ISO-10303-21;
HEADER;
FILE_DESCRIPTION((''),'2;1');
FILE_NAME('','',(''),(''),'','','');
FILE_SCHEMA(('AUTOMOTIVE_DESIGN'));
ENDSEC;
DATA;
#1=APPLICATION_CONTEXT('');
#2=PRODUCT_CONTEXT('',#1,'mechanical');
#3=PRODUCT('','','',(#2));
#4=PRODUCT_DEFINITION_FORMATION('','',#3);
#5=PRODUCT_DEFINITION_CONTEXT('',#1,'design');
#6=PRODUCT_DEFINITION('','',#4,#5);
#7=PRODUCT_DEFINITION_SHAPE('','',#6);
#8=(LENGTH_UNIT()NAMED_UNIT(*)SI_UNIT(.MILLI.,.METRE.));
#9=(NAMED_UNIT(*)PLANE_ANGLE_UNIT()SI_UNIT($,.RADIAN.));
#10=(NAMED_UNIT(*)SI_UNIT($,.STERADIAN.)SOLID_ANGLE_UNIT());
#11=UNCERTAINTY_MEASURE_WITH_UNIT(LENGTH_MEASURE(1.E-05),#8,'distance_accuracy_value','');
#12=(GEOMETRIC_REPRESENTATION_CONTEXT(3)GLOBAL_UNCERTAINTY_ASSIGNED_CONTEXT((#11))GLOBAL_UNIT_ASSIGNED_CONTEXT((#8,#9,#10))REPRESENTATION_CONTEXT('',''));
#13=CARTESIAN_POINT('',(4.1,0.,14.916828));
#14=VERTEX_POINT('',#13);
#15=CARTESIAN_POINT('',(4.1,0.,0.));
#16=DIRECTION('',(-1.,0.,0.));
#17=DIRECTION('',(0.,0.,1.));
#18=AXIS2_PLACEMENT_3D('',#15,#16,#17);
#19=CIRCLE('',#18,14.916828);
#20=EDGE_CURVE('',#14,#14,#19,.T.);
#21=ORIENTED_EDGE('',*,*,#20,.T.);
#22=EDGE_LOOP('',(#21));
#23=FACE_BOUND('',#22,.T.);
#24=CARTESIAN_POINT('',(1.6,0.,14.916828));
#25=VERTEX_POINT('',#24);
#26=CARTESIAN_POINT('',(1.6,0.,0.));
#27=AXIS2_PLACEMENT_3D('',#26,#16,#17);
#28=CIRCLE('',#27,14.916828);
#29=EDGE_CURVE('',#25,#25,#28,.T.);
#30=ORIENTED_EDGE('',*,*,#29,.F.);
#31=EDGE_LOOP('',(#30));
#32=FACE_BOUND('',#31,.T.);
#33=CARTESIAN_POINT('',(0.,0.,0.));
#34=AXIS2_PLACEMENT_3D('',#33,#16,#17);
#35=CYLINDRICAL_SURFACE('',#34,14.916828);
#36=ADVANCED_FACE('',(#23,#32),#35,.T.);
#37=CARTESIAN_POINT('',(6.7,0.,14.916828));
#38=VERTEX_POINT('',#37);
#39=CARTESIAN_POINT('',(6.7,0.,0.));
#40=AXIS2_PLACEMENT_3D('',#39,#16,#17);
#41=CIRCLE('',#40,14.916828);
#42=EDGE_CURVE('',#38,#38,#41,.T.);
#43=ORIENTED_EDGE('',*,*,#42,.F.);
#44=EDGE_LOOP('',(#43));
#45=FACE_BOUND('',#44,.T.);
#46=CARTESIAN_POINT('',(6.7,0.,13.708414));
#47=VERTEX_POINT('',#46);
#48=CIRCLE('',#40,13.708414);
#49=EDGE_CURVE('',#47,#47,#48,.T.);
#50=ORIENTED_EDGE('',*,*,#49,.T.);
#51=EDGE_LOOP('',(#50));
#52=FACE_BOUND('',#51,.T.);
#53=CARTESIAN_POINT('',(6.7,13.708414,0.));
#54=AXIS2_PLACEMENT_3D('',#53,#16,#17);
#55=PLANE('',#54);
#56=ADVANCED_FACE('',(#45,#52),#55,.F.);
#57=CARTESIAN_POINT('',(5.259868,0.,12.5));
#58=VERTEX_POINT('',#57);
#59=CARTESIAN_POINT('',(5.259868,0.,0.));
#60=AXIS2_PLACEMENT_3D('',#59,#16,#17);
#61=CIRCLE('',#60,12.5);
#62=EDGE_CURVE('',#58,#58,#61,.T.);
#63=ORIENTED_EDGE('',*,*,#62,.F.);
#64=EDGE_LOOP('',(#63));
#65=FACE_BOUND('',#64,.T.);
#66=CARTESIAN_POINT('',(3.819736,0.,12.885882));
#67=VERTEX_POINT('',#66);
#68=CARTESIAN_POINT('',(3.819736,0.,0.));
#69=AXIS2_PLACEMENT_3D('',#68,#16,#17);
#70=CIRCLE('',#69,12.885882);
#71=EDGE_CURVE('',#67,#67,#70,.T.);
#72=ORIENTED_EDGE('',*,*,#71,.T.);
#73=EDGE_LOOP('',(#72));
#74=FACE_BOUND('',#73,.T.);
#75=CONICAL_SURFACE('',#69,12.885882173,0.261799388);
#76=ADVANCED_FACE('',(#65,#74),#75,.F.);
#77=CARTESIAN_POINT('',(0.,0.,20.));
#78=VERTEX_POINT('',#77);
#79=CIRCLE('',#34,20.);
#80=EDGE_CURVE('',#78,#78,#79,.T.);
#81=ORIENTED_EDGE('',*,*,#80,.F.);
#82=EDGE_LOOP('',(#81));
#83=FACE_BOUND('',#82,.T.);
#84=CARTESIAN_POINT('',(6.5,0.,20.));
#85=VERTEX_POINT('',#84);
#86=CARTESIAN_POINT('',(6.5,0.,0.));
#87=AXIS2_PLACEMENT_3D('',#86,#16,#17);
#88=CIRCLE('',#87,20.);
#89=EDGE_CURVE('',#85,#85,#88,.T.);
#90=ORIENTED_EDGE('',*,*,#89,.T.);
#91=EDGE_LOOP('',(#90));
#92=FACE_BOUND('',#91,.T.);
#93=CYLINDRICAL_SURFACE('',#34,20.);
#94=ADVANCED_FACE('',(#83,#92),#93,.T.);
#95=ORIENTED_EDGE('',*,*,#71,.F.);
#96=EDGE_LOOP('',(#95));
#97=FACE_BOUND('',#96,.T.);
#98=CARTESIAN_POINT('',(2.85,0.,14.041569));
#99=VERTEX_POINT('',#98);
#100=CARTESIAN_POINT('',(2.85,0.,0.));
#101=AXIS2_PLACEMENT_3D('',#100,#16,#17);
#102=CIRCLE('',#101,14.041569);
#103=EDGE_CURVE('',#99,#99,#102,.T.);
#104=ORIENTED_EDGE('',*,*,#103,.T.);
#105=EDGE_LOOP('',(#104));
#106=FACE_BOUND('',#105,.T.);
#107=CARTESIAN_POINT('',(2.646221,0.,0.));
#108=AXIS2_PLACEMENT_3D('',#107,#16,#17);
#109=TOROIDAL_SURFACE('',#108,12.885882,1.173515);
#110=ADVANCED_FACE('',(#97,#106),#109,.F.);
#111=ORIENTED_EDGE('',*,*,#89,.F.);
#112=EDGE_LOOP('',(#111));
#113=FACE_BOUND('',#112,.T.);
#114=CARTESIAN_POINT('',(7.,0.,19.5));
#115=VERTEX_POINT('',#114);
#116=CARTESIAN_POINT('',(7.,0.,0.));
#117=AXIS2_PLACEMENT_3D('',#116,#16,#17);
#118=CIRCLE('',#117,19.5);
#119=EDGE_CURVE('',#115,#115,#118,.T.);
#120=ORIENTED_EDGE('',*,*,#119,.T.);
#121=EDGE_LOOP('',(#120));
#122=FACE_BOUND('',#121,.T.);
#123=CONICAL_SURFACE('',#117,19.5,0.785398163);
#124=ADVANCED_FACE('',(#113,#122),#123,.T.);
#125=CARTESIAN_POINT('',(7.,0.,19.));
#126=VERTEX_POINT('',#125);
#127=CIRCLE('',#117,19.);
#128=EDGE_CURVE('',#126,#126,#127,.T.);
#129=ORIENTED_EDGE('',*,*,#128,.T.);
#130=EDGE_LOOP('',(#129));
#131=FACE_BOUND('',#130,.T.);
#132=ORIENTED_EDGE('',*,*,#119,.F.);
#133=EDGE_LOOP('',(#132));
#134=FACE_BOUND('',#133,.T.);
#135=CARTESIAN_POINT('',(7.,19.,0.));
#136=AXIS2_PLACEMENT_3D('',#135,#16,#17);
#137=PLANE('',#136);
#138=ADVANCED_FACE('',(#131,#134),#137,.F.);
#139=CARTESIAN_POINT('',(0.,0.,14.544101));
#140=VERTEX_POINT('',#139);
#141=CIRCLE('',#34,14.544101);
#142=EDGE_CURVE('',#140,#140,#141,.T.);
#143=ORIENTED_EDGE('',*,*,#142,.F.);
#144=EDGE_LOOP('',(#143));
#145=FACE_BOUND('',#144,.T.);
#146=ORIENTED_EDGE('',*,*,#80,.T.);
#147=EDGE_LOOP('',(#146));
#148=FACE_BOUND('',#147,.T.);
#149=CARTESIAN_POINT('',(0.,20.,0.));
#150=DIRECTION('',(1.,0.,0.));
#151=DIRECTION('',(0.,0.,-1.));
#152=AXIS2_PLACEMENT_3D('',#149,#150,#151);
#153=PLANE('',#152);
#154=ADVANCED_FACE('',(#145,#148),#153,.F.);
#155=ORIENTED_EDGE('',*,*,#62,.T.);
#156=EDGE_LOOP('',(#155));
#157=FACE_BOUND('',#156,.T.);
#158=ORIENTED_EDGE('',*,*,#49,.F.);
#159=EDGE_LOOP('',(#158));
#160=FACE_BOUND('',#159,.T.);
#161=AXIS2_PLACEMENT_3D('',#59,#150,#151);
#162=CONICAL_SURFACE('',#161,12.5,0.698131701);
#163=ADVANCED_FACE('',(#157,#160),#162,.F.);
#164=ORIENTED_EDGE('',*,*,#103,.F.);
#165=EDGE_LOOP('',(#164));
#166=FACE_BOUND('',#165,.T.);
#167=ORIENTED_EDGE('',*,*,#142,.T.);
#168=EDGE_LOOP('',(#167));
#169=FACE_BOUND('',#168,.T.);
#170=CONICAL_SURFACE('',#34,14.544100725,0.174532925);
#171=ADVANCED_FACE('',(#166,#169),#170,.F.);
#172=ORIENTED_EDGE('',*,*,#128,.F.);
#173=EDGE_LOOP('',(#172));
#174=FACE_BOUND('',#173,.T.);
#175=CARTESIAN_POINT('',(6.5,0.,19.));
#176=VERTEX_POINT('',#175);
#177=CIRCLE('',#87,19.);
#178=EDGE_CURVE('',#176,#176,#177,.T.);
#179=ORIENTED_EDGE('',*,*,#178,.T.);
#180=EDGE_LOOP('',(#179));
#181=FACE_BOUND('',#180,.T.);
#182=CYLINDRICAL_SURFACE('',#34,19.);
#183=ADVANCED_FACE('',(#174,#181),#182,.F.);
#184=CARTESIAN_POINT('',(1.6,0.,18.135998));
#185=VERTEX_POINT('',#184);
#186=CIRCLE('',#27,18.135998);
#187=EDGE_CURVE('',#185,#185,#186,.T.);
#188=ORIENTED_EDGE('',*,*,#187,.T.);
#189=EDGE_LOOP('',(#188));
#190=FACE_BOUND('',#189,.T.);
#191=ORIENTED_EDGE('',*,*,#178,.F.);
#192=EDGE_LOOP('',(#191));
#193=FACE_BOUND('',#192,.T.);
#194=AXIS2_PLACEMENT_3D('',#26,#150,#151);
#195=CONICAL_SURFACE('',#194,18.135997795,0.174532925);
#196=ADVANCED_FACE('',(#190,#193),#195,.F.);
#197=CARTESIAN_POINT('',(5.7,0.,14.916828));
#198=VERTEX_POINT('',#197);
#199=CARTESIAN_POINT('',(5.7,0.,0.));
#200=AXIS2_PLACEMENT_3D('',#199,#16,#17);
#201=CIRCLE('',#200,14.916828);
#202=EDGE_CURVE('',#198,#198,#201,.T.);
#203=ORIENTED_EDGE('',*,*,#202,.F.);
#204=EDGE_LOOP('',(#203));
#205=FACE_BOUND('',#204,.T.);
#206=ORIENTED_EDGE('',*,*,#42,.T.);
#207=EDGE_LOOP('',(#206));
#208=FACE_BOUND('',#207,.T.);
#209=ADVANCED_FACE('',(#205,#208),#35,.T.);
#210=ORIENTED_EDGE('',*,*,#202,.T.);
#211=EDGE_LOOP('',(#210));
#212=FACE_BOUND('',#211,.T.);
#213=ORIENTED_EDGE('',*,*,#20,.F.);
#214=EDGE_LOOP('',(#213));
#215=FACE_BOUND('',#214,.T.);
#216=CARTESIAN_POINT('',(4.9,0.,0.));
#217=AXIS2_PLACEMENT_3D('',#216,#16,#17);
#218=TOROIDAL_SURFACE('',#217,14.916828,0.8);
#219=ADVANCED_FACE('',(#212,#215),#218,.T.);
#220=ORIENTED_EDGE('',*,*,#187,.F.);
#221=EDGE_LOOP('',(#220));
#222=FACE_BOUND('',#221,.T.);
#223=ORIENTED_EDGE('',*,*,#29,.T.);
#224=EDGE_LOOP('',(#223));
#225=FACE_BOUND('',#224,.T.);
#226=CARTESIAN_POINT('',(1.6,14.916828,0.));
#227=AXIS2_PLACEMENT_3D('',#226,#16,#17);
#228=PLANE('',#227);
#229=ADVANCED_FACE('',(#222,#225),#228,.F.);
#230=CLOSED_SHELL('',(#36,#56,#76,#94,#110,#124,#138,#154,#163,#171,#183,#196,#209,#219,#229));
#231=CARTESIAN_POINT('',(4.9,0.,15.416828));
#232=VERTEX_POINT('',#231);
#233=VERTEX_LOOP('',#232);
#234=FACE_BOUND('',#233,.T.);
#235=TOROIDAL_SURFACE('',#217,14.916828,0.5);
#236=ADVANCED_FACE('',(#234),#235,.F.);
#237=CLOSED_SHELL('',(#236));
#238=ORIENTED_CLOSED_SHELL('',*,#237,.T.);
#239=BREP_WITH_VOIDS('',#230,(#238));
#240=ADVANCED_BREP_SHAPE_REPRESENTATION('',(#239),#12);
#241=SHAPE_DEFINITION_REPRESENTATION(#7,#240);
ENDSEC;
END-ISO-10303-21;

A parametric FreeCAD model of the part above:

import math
import FreeCAD as App
import Part
import Sketcher
from FreeCAD import Vector
Q = App.Units.Quantity

doc = App.newDocument("Part")
params = doc.addObject("Spreadsheet::Sheet", "Params")
for row, (alias, value) in enumerate([
    ("sketch1_diameter", "1 mm"),
    ("sketch1_radius", "0.8 mm"),
    ("sketch1_width", "1 mm"),
    ("sketch1_width2", "2.5 mm"),
    ("sketch1_width3", "0.5 mm"),
    ("revolution_angle", "360 deg"),
], start=1):
    params.set(f"A{row}", alias)
    params.set(f"B{row}", "=" + value)
    params.setAlias(f"B{row}", alias)

body = doc.addObject("PartDesign::Body", "Body")

sketch1 = body.newObject("Sketcher::SketchObject", "Sketch")
sketch1.AttachmentSupport = (doc.getObject("XY_Plane"), [""])
sketch1.MapMode = "FlatFace"
sketch1.addGeometry([
    Part.LineSegment(Vector(0, 20, 0), Vector(0, 14.5, 0)),
    Part.LineSegment(Vector(0, 14.5, 0), Vector(2.9, 14, 0)),
    Part.ArcOfCircle(Part.Circle(Vector(2.6, 12.9, 0), Vector(0, 0, 1), 1.2), math.radians(0), math.radians(80)),
    Part.LineSegment(Vector(3.8, 12.9, 0), Vector(5.3, 12.5, 0)),
    Part.LineSegment(Vector(5.3, 12.5, 0), Vector(6.7, 13.7, 0)),
    Part.LineSegment(Vector(6.7, 13.7, 0), Vector(6.7, 14.9, 0)),
    Part.LineSegment(Vector(6.7, 14.9, 0), Vector(5.7, 14.9, 0)),
    Part.ArcOfCircle(Part.Circle(Vector(4.9, 14.9, 0), Vector(0, 0, 1), 0.8), math.radians(0), math.radians(180)),
    Part.LineSegment(Vector(4.1, 14.9, 0), Vector(1.6, 14.9, 0)),
    Part.LineSegment(Vector(1.6, 14.9, 0), Vector(1.6, 18.1, 0)),
    Part.LineSegment(Vector(1.6, 18.1, 0), Vector(6.5, 19, 0)),
    Part.LineSegment(Vector(6.5, 19, 0), Vector(7, 19, 0)),
    Part.LineSegment(Vector(7, 19, 0), Vector(7, 19.5, 0)),
    Part.LineSegment(Vector(7, 19.5, 0), Vector(6.5, 20, 0)),
    Part.LineSegment(Vector(6.5, 20, 0), Vector(0, 20, 0)),
    Part.Circle(Vector(4.9, 14.9, 0), Vector(0, 0, 1), 0.5),
], False)
sketch1.addConstraint([
    Sketcher.Constraint("Coincident", 0, 2, 1, 1),
    Sketcher.Constraint("Tangent", 1, 2, 2, 2),
    Sketcher.Constraint("Coincident", 2, 1, 3, 1),
    Sketcher.Constraint("Coincident", 3, 2, 4, 1),
    Sketcher.Constraint("Coincident", 4, 2, 5, 1),
    Sketcher.Constraint("Coincident", 5, 2, 6, 1),
    Sketcher.Constraint("Coincident", 6, 2, 7, 1),
    Sketcher.Constraint("Coincident", 7, 2, 8, 1),
    Sketcher.Constraint("Coincident", 8, 2, 9, 1),
    Sketcher.Constraint("Coincident", 9, 2, 10, 1),
    Sketcher.Constraint("Coincident", 10, 2, 11, 1),
    Sketcher.Constraint("Coincident", 11, 2, 12, 1),
    Sketcher.Constraint("Coincident", 12, 2, 13, 1),
    Sketcher.Constraint("Coincident", 13, 2, 14, 1),
    Sketcher.Constraint("Coincident", 14, 2, 0, 1),
    Sketcher.Constraint("Vertical", 0),
    Sketcher.Constraint("Vertical", 5),
    Sketcher.Constraint("Horizontal", 6),
    Sketcher.Constraint("Horizontal", 8),
    Sketcher.Constraint("Vertical", 9),
    Sketcher.Constraint("Horizontal", 11),
    Sketcher.Constraint("Vertical", 12),
    Sketcher.Constraint("Horizontal", 14),
    Sketcher.Constraint("Coincident", 15, 3, 7, 3),
    Sketcher.Constraint("PointOnObject", 0, 2, -2),
    Sketcher.Constraint("Horizontal", 15, 3, 5, 2),
    Sketcher.Constraint("Horizontal", 6, 2, 7, 2),
    Sketcher.Constraint("Vertical", 10, 2, 13, 2),
    Sketcher.Constraint("Equal", 11, 12),
    Sketcher.Constraint("Diameter", 15, 1.0),
    Sketcher.Constraint("Radius", 7, 0.8),
    Sketcher.Constraint("DistanceX", 6, 2, 6, 1, 1.0),
    Sketcher.Constraint("Angle", 1, Q("-10 deg")),
    Sketcher.Constraint("Angle", 3, Q("-15 deg")),
    Sketcher.Constraint("Angle", 4, Q("40 deg")),
    Sketcher.Constraint("Angle", 10, Q("10 deg")),
    Sketcher.Constraint("Angle", 13, Q("135 deg")),
    Sketcher.Constraint("DistanceX", 8, 2, 8, 1, 2.5),
    Sketcher.Constraint("DistanceX", 11, 1, 11, 2, 0.5),
    Sketcher.Constraint("DistanceX", 14, 2, 14, 1, 6.5),
    Sketcher.Constraint("DistanceY", -1, 1, 10, 2, 19.0),
    Sketcher.Constraint("DistanceX", -1, 1, 7, 3, 4.9),
    Sketcher.Constraint("DistanceY", -1, 1, 3, 2, 12.5),
    Sketcher.Constraint("DistanceX", -1, 1, 1, 2, 2.85),
    Sketcher.Constraint("DistanceY", 0, 2, 0, 1, 5.455899),
    Sketcher.Constraint("Radius", 2, 1.173515),
    Sketcher.Constraint("DistanceY", 9, 1, 9, 2, 3.21917),
    Sketcher.Constraint("Distance", 4, 1.879959),
])
sketch1.setExpression("Constraints[29]", "Params.sketch1_diameter")
sketch1.setExpression("Constraints[30]", "Params.sketch1_radius")
sketch1.setExpression("Constraints[31]", "Params.sketch1_width")
sketch1.setExpression("Constraints[37]", "Params.sketch1_width2")
sketch1.setExpression("Constraints[38]", "Params.sketch1_width3")
revolution = body.newObject("PartDesign::Revolution", "Revolution")
revolution.Profile = sketch1
revolution.ReferenceAxis = (sketch1, ["H_Axis"])
revolution.setExpression("Angle", "Params.revolution_angle")

doc.recompute()
